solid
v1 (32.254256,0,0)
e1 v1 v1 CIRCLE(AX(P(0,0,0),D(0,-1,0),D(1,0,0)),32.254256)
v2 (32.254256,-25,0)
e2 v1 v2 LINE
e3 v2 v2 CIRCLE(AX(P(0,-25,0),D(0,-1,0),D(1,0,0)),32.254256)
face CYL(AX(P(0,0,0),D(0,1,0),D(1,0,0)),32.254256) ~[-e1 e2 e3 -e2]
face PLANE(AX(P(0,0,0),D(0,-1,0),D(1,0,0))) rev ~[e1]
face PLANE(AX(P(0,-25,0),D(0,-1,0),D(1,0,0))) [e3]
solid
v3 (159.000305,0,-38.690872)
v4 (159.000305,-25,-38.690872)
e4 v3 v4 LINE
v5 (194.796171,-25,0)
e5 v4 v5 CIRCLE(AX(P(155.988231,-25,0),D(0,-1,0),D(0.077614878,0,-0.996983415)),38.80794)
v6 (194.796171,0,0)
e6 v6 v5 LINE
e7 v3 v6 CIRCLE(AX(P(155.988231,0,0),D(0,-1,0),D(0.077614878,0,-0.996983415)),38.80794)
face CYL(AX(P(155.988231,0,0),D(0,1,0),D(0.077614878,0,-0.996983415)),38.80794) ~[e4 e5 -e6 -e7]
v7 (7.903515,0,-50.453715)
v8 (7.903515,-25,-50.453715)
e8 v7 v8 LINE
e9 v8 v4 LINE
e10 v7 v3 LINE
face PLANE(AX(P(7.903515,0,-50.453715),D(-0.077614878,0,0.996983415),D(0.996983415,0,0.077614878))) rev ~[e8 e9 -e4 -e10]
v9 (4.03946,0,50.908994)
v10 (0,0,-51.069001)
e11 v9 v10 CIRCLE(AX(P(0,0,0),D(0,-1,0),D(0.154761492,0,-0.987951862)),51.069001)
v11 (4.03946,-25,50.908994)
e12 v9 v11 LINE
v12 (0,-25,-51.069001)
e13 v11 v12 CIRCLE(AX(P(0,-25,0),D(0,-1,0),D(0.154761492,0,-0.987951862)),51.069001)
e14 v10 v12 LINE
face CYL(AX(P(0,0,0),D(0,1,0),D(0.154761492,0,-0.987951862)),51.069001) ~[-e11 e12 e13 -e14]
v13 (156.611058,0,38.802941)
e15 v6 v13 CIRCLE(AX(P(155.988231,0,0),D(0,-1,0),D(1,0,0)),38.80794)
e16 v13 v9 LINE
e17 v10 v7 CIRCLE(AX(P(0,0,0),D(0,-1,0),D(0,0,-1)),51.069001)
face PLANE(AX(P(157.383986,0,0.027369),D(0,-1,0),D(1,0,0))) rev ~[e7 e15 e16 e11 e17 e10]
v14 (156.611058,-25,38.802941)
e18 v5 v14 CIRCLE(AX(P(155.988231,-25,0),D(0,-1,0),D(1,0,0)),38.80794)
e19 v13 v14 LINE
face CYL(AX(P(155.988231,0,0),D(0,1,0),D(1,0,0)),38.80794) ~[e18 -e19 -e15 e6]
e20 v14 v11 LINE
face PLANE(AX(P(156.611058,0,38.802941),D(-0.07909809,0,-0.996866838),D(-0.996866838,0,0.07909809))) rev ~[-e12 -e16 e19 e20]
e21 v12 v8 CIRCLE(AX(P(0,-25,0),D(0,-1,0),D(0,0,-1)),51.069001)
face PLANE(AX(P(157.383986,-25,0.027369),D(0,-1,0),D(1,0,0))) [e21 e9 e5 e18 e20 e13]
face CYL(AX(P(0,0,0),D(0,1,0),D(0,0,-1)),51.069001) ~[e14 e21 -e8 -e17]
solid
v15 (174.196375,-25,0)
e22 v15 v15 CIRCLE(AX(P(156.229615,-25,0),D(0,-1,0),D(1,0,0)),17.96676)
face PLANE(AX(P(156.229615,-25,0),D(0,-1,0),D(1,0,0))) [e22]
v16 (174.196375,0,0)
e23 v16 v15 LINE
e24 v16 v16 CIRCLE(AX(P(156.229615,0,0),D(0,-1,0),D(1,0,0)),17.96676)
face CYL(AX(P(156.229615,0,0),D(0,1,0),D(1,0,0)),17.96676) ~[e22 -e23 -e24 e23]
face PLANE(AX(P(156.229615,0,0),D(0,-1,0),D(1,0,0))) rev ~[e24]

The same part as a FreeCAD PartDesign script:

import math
import FreeCAD as App
import Part
import Sketcher

doc = App.newDocument("Part")
body = doc.addObject("PartDesign::Body", "Body")

# Sketch on XZ plane
sketch1 = body.newObject("Sketcher::SketchObject", "Sketch")
sketch1.AttachmentSupport = (doc.getObject("XZ_Plane"), [""])
sketch1.MapMode = "FlatFace"
sketch1.addGeometry([
    Part.ArcOfCircle(Part.Circle(App.Vector(156, 0, 0), App.Vector(0, 0, 1), 39), math.radians(-86), math.radians(0)),  # 0
    Part.ArcOfCircle(Part.Circle(App.Vector(156, 0, 0), App.Vector(0, 0, 1), 39), math.radians(0), math.radians(89)),  # 1
    Part.LineSegment(App.Vector(157, 39, 0), App.Vector(4, 51, 0)),  # 2
    Part.ArcOfCircle(Part.Circle(App.Vector(0, 0, 0), App.Vector(0, 0, 1), 51), math.radians(85), math.radians(270)),  # 3
    Part.ArcOfCircle(Part.Circle(App.Vector(0, 0, 0), App.Vector(0, 0, 1), 51), math.radians(-90), math.radians(-81.1)),  # 4
    Part.LineSegment(App.Vector(8, -50, 0), App.Vector(159, -39, 0)),  # 5
], False)
sketch1.addConstraint([
    Sketcher.Constraint("Tangent", 0, 2, 1, 1),
    Sketcher.Constraint("Coincident", 1, 2, 2, 1),
    Sketcher.Constraint("Tangent", 2, 2, 3, 1),
    Sketcher.Constraint("Tangent", 3, 2, 4, 1),
    Sketcher.Constraint("Coincident", 4, 2, 5, 1),
    Sketcher.Constraint("Tangent", 5, 2, 0, 1),
    Sketcher.Constraint("Coincident", 3, 3, -1, 1),
    Sketcher.Constraint("Equal", 0, 1),
    Sketcher.Constraint("Equal", 3, 4),
    Sketcher.Constraint("PointOnObject", 0, 3, -1),
    Sketcher.Constraint("PointOnObject", 0, 2, -1),
    Sketcher.Constraint("PointOnObject", 3, 2, -2),
    Sketcher.Constraint("Radius", 3, 51.069001),
    Sketcher.Constraint("Radius", 0, 38.80794),
    Sketcher.Constraint("Distance", 2, 153.051131),
    Sketcher.Constraint("DistanceX", -1, 1, 0, 3, 155.988231),
    Sketcher.Constraint("DistanceY", 4, 2, 2, 2, 101.362708),
])
pad1 = body.newObject("PartDesign::Pad", "Pad")
pad1.Profile = sketch1
pad1.Length = 25
body2 = doc.addObject("PartDesign::Body", "Body001")

# Sketch on XZ plane
sketch2 = body2.newObject("Sketcher::SketchObject", "Sketch001")
sketch2.AttachmentSupport = (doc.getObject("XZ_Plane001"), [""])
sketch2.MapMode = "FlatFace"
sketch2.addGeometry(Part.Circle(App.Vector(156, 0, 0), App.Vector(0, 0, 1), 18), False)
sketch2.addConstraint([
    Sketcher.Constraint("PointOnObject", 0, 3, -1),
    Sketcher.Constraint("Diameter", 0, 35.933519),
    Sketcher.Constraint("DistanceX", -1, 1, 0, 3, 156.229615),
])
pad2 = body2.newObject("PartDesign::Pad", "Pad001")
pad2.Profile = sketch2
pad2.Length = 25
body3 = doc.addObject("PartDesign::Body", "Body002")

# Sketch on XZ plane
sketch3 = body3.newObject("Sketcher::SketchObject", "Sketch002")
sketch3.AttachmentSupport = (doc.getObject("XZ_Plane002"), [""])
sketch3.MapMode = "FlatFace"
sketch3.addGeometry(Part.Circle(App.Vector(0, 0, 0), App.Vector(0, 0, 1), 32), False)
sketch3.addConstraint([
    Sketcher.Constraint("Coincident", 0, 3, -1, 1),
    Sketcher.Constraint("Diameter", 0, 64.508512),
])
pad3 = body3.newObject("PartDesign::Pad", "Pad002")
pad3.Profile = sketch3
pad3.Length = 25

doc.recompute()
